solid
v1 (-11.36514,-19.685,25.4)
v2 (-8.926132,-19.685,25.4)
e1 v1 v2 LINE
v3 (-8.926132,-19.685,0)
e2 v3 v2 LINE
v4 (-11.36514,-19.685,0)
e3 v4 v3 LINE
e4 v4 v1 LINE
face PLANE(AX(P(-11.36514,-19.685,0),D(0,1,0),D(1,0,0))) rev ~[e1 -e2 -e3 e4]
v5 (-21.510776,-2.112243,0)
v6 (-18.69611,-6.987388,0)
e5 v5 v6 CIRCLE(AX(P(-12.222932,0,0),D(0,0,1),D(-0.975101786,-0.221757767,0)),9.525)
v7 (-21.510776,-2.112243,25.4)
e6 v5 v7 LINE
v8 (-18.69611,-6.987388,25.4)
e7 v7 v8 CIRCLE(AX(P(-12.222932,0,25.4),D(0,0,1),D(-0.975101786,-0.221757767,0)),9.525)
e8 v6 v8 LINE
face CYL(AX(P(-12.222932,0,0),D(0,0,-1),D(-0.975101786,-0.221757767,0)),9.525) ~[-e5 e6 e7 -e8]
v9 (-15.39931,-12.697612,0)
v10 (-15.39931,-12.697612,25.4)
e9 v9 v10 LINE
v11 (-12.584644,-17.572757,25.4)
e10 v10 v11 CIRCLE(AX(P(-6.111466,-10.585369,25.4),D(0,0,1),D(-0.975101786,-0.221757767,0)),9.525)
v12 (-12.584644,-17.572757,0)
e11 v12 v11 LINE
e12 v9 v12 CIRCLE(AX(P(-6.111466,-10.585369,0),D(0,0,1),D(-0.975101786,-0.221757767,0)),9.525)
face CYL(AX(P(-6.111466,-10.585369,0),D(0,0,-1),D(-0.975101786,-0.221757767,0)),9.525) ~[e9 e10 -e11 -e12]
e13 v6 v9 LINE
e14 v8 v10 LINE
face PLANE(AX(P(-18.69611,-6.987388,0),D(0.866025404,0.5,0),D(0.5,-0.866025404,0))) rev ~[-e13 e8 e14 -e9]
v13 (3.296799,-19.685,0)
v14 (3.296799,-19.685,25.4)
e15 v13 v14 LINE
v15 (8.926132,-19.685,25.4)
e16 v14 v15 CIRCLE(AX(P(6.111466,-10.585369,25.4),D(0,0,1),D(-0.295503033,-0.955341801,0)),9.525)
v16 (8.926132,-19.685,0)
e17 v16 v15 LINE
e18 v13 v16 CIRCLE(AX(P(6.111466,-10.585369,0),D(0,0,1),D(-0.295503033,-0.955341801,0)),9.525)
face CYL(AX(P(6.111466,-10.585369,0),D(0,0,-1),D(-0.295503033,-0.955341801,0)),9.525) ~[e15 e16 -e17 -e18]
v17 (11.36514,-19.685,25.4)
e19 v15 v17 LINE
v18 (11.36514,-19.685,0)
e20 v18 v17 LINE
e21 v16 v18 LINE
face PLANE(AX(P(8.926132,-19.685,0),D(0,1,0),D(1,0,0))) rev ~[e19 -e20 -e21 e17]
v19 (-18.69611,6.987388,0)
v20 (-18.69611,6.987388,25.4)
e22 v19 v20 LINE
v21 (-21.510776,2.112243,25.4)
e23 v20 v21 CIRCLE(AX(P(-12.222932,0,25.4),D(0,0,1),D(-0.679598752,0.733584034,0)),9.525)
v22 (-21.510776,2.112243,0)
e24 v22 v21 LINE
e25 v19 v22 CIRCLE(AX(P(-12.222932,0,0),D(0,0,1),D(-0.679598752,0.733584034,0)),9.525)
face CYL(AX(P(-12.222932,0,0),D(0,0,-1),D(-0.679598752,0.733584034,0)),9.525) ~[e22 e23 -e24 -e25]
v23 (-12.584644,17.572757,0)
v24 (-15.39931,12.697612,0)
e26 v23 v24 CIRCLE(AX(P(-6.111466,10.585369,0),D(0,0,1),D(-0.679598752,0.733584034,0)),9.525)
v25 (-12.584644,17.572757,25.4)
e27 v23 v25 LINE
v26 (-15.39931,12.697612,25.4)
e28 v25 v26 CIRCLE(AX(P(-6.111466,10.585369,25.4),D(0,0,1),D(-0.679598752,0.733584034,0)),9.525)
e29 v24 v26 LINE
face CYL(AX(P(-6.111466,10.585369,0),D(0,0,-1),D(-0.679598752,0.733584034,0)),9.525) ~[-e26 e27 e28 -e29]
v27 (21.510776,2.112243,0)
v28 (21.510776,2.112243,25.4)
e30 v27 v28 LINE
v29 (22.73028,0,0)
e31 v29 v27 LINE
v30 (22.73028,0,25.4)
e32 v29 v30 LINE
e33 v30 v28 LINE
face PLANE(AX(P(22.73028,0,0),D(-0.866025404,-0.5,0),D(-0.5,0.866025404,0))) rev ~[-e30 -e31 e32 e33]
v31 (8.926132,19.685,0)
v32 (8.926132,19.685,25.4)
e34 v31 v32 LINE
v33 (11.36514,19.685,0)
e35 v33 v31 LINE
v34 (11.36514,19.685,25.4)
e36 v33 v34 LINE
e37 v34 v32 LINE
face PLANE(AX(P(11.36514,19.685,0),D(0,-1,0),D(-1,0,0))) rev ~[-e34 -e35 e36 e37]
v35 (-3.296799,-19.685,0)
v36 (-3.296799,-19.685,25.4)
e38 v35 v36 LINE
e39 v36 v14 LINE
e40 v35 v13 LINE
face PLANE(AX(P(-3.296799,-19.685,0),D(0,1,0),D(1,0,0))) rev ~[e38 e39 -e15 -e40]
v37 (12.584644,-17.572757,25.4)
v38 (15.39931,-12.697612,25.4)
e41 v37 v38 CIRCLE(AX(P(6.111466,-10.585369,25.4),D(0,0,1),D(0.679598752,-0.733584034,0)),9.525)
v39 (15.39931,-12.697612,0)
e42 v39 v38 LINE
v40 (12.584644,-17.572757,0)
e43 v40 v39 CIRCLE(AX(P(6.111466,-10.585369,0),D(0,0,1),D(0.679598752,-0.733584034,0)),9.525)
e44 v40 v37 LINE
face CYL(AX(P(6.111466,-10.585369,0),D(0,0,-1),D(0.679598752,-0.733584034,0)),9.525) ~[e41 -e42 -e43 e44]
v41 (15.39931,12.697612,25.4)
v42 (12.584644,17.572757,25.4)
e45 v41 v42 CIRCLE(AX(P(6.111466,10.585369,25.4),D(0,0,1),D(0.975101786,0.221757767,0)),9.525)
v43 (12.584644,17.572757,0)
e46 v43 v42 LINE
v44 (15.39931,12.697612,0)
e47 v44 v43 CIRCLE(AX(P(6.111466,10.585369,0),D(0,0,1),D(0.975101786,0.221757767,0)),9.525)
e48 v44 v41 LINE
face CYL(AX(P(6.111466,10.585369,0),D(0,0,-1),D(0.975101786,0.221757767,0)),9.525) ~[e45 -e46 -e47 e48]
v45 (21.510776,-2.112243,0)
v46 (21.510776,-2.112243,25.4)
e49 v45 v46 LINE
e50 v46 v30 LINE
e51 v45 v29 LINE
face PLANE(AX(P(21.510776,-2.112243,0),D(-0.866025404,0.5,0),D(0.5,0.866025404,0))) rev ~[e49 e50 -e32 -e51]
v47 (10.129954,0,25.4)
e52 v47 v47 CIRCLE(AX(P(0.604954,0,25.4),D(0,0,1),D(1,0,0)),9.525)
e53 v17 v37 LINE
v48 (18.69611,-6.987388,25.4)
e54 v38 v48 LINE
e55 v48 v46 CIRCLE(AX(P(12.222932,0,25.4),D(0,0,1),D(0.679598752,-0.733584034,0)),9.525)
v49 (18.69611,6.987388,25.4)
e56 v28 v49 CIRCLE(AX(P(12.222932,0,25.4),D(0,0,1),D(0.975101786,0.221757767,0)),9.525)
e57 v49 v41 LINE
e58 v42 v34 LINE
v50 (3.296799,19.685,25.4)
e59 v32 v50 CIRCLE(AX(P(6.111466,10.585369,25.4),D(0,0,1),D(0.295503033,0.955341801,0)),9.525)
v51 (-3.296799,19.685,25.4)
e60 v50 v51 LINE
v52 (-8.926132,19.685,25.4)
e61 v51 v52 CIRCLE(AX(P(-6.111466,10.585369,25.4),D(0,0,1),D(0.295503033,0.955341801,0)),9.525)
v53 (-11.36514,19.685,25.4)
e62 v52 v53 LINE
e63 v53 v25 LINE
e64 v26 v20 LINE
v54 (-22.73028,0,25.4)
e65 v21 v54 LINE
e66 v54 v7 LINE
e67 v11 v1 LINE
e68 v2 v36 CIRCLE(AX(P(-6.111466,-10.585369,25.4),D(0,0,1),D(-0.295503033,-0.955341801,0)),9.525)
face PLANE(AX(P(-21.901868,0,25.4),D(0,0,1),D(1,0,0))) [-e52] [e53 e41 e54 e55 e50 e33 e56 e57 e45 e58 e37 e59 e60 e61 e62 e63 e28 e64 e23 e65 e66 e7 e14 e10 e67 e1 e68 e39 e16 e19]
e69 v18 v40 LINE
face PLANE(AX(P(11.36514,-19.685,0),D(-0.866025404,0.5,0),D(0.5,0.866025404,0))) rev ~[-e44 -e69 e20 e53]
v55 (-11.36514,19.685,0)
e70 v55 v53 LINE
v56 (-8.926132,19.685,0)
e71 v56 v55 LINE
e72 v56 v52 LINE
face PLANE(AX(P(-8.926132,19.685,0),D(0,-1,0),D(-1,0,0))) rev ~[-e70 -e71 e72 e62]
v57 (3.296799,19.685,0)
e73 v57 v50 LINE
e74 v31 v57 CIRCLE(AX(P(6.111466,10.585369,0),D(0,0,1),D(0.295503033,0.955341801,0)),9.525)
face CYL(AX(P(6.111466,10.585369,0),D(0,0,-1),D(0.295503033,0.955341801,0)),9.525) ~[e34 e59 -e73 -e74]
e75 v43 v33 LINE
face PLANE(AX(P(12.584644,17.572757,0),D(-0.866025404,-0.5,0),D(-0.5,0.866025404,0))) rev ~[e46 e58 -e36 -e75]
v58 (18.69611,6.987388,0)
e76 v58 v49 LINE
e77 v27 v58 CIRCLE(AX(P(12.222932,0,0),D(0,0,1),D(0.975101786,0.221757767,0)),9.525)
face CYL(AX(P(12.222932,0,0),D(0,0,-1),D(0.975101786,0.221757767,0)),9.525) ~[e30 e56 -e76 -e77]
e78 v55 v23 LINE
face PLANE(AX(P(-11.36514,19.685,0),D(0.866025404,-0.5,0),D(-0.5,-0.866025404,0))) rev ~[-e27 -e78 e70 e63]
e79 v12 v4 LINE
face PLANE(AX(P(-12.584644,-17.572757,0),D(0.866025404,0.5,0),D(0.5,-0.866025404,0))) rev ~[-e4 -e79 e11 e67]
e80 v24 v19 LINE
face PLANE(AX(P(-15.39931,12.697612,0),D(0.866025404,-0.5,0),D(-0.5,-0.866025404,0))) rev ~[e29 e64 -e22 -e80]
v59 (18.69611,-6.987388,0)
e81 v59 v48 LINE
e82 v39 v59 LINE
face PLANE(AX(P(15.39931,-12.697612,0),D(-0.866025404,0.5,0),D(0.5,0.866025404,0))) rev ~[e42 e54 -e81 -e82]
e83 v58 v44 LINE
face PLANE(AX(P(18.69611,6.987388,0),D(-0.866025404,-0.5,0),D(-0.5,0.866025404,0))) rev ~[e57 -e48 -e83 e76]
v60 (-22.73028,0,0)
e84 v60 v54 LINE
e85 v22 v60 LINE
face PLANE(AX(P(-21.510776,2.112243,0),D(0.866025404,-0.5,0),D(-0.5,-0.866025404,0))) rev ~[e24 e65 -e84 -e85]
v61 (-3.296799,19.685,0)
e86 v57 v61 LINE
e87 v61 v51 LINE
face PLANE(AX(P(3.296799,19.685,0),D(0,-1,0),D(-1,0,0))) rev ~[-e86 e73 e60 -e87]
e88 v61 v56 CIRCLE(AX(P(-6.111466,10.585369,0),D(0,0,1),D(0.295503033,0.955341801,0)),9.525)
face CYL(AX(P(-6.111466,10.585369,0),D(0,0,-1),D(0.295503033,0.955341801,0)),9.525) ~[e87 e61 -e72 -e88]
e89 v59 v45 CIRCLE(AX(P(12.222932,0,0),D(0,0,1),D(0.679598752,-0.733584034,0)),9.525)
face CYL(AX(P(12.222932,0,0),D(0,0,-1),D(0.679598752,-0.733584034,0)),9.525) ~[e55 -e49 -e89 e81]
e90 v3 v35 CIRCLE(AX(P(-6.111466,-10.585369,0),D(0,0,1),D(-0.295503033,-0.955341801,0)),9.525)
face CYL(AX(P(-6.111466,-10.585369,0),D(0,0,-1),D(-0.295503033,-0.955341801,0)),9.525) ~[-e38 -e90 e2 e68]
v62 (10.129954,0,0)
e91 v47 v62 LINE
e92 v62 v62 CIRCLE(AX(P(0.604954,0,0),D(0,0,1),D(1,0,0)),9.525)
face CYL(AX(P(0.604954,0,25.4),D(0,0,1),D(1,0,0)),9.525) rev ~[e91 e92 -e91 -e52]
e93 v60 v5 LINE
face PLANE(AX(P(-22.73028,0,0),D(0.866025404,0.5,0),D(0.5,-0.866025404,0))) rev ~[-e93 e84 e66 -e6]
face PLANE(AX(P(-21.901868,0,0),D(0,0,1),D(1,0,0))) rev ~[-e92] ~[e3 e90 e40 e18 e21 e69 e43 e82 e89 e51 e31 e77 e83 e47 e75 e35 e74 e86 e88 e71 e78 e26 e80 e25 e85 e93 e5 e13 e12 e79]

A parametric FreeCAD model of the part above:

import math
import FreeCAD as App
import Part
import Sketcher

V = App.Vector
Q = App.Units.Quantity

doc = App.newDocument("Part")
body = doc.addObject("PartDesign::Body", "Body")

sketch1 = doc.addObject("Sketcher::SketchObject", "Sketch")
body.addObject(sketch1)
sketch1.AttachmentSupport = (doc.XY_Plane, [""])
sketch1.MapMode = "FlatFace"
sketch1.addGeometry([
    Part.LineSegment(V(8.926132, -19.685, 0), V(11.36514, -19.685, 0)),
    Part.LineSegment(V(11.36514, -19.685, 0), V(12.584644, -17.572757, 0)),
    Part.ArcOfCircle(Part.Circle(V(6.111466, -10.585369, 0), V(0, 0, 1), 9.525), math.radians(-47.187704), math.radians(-12.812296)),
    Part.LineSegment(V(15.39931, -12.697612, 0), V(18.69611, -6.987388, 0)),
    Part.ArcOfCircle(Part.Circle(V(12.222932, 0, 0), V(0, 0, 1), 9.525), math.radians(-47.187704), math.radians(-12.812296)),
    Part.LineSegment(V(21.510776, -2.112243, 0), V(22.73028, 0, 0)),
    Part.LineSegment(V(22.73028, 0, 0), V(21.510776, 2.112243, 0)),
    Part.ArcOfCircle(Part.Circle(V(12.222932, 0, 0), V(0, 0, 1), 9.525), math.radians(12.812296), math.radians(47.187704)),
    Part.LineSegment(V(18.69611, 6.987388, 0), V(15.39931, 12.697612, 0)),
    Part.ArcOfCircle(Part.Circle(V(6.111466, 10.585369, 0), V(0, 0, 1), 9.525), math.radians(12.812296), math.radians(47.187704)),
    Part.LineSegment(V(12.584644, 17.572757, 0), V(11.36514, 19.685, 0)),
    Part.LineSegment(V(11.36514, 19.685, 0), V(8.926132, 19.685, 0)),
    Part.ArcOfCircle(Part.Circle(V(6.111466, 10.585369, 0), V(0, 0, 1), 9.525), math.radians(72.812296), math.radians(107.187704)),
    Part.LineSegment(V(3.296799, 19.685, 0), V(-3.296799, 19.685, 0)),
    Part.ArcOfCircle(Part.Circle(V(-6.111466, 10.585369, 0), V(0, 0, 1), 9.525), math.radians(72.812296), math.radians(107.187704)),
    Part.LineSegment(V(-8.926132, 19.685, 0), V(-11.36514, 19.685, 0)),
    Part.LineSegment(V(-11.36514, 19.685, 0), V(-12.584644, 17.572757, 0)),
    Part.ArcOfCircle(Part.Circle(V(-6.111466, 10.585369, 0), V(0, 0, 1), 9.525), math.radians(132.812296), math.radians(167.187704)),
    Part.LineSegment(V(-15.39931, 12.697612, 0), V(-18.69611, 6.987388, 0)),
    Part.ArcOfCircle(Part.Circle(V(-12.222932, 0, 0), V(0, 0, 1), 9.525), math.radians(132.812296), math.radians(167.187704)),
    Part.LineSegment(V(-21.510776, 2.112243, 0), V(-22.73028, 0, 0)),
    Part.LineSegment(V(-22.73028, 0, 0), V(-21.510776, -2.112243, 0)),
    Part.ArcOfCircle(Part.Circle(V(-12.222932, 0, 0), V(0, 0, 1), 9.525), math.radians(-167.187704), math.radians(-132.812296)),
    Part.LineSegment(V(-18.69611, -6.987388, 0), V(-15.39931, -12.697612, 0)),
    Part.ArcOfCircle(Part.Circle(V(-6.111466, -10.585369, 0), V(0, 0, 1), 9.525), math.radians(-167.187704), math.radians(-132.812296)),
    Part.LineSegment(V(-12.584644, -17.572757, 0), V(-11.36514, -19.685, 0)),
    Part.LineSegment(V(-11.36514, -19.685, 0), V(-8.926132, -19.685, 0)),
    Part.ArcOfCircle(Part.Circle(V(-6.111466, -10.585369, 0), V(0, 0, 1), 9.525), math.radians(-107.187704), math.radians(-72.812296)),
    Part.LineSegment(V(-3.296799, -19.685, 0), V(3.296799, -19.685, 0)),
    Part.ArcOfCircle(Part.Circle(V(6.111466, -10.585369, 0), V(0, 0, 1), 9.525), math.radians(-107.187704), math.radians(-72.812296)),
], False)
sketch1.addConstraint([
    Sketcher.Constraint("Coincident", 0, 2, 1, 1),
    Sketcher.Constraint("Coincident", 1, 2, 2, 1),
    Sketcher.Constraint("Coincident", 2, 2, 3, 1),
    Sketcher.Constraint("Coincident", 3, 2, 4, 1),
    Sketcher.Constraint("Coincident", 4, 2, 5, 1),
    Sketcher.Constraint("Coincident", 5, 2, 6, 1),
    Sketcher.Constraint("Coincident", 6, 2, 7, 1),
    Sketcher.Constraint("Coincident", 7, 2, 8, 1),
    Sketcher.Constraint("Coincident", 8, 2, 9, 1),
    Sketcher.Constraint("Coincident", 9, 2, 10, 1),
    Sketcher.Constraint("Coincident", 10, 2, 11, 1),
    Sketcher.Constraint("Coincident", 11, 2, 12, 1),
    Sketcher.Constraint("Coincident", 12, 2, 13, 1),
    Sketcher.Constraint("Coincident", 13, 2, 14, 1),
    Sketcher.Constraint("Coincident", 14, 2, 15, 1),
    Sketcher.Constraint("Coincident", 15, 2, 16, 1),
    Sketcher.Constraint("Coincident", 16, 2, 17, 1),
    Sketcher.Constraint("Coincident", 17, 2, 18, 1),
    Sketcher.Constraint("Coincident", 18, 2, 19, 1),
    Sketcher.Constraint("Coincident", 19, 2, 20, 1),
    Sketcher.Constraint("Coincident", 20, 2, 21, 1),
    Sketcher.Constraint("Coincident", 21, 2, 22, 1),
    Sketcher.Constraint("Coincident", 22, 2, 23, 1),
    Sketcher.Constraint("Coincident", 23, 2, 24, 1),
    Sketcher.Constraint("Coincident", 24, 2, 25, 1),
    Sketcher.Constraint("Coincident", 25, 2, 26, 1),
    Sketcher.Constraint("Coincident", 26, 2, 27, 1),
    Sketcher.Constraint("Coincident", 27, 2, 28, 1),
    Sketcher.Constraint("Coincident", 28, 2, 29, 1),
    Sketcher.Constraint("Coincident", 29, 2, 0, 1),
    Sketcher.Constraint("Horizontal", 0),
    Sketcher.Constraint("Horizontal", 11),
    Sketcher.Constraint("Horizontal", 13),
    Sketcher.Constraint("Horizontal", 15),
    Sketcher.Constraint("Horizontal", 26),
    Sketcher.Constraint("Horizontal", 28),
    Sketcher.Constraint("Coincident", 7, 3, 4, 3),
    Sketcher.Constraint("Coincident", 12, 3, 9, 3),
    Sketcher.Constraint("Coincident", 17, 3, 14, 3),
    Sketcher.Constraint("Coincident", 22, 3, 19, 3),
    Sketcher.Constraint("Coincident", 27, 3, 24, 3),
    Sketcher.Constraint("Coincident", 29, 3, 2, 3),
    Sketcher.Constraint("Equal", 2, 4),
    Sketcher.Constraint("Equal", 4, 7),
    Sketcher.Constraint("Equal", 7, 9),
    Sketcher.Constraint("Equal", 9, 12),
    Sketcher.Constraint("Equal", 12, 14),
    Sketcher.Constraint("Equal", 14, 17),
    Sketcher.Constraint("Equal", 17, 19),
    Sketcher.Constraint("Equal", 19, 22),
    Sketcher.Constraint("Equal", 22, 24),
    Sketcher.Constraint("Equal", 24, 27),
    Sketcher.Constraint("Equal", 27, 29),
    Sketcher.Constraint("Symmetric", 2, 3, 14, 3, -1, 1),
    Sketcher.Constraint("Symmetric", 4, 3, 19, 3, -1, 1),
    Sketcher.Constraint("Symmetric", 9, 3, 24, 3, -1, 1),
    Sketcher.Constraint("Symmetric", 0, 2, 15, 2, -1, 1),
    Sketcher.Constraint("Symmetric", 5, 2, 20, 2, -1, 1),
    Sketcher.Constraint("Symmetric", 10, 2, 25, 2, -1, 1),
    Sketcher.Constraint("Symmetric", 9, 3, 14, 3, -2),
    Sketcher.Constraint("Symmetric", 10, 2, 15, 2, -2),
    Sketcher.Constraint("Symmetric", 7, 2, 18, 2, -2),
    Sketcher.Constraint("PointOnObject", 5, 2, -1),
    Sketcher.Constraint("Parallel", 1, 3),
    Sketcher.Constraint("Parallel", 3, 5),
    Sketcher.Constraint("Parallel", 6, 8),
    Sketcher.Constraint("Parallel", 8, 10),
    Sketcher.Constraint("Parallel", 5, 16),
    Sketcher.Constraint("Parallel", 16, 18),
    Sketcher.Constraint("Parallel", 18, 20),
    Sketcher.Constraint("Parallel", 10, 21),
    Sketcher.Constraint("Parallel", 21, 23),
    Sketcher.Constraint("Parallel", 23, 25),
    Sketcher.Constraint("Horizontal", 11, 2, 12, 2),
    Sketcher.Constraint("Horizontal", 9, 2, 16, 2),
    Sketcher.Constraint("Horizontal", 3, 2, 22, 2),
    Sketcher.Constraint("Horizontal", 26, 2, 27, 2),
    Sketcher.Constraint("Vertical", 3, 2, 7, 2),
    Sketcher.Constraint("Equal", 1, 5),
    Sketcher.Constraint("Angle", 1, Q("60 deg")),
    Sketcher.Constraint("Radius", 2, Q("0.375 in")),
    Sketcher.Constraint("DistanceY", 0, 2, -1, 1, Q("0.775 in")),
    Sketcher.Constraint("DistanceX", 13, 2, 13, 1, 6.593599),
    Sketcher.Constraint("Distance", 3, 6.593599),
    Sketcher.Constraint("DistanceX", 14, 2, 9, 3, 15.037598),
    Sketcher.Constraint("DistanceX", 0, 1, 0, 2, 2.439008),
    Sketcher.Constraint("DistanceX", -1, 1, 4, 3, 12.222932),
])
pad1 = doc.addObject("PartDesign::Pad", "Pad")
body.addObject(pad1)
pad1.Profile = sketch1
pad1.Length = Q("1 in")

sketch2 = doc.addObject("Sketcher::SketchObject", "Sketch001")
body.addObject(sketch2)
sketch2.AttachmentSupport = (doc.XY_Plane, [""])
sketch2.MapMode = "FlatFace"
sketch2.AttachmentOffset = App.Placement(V(0, 0, 1 * 25.4), App.Rotation())
sketch2.addGeometry(Part.Circle(V(0.604954, 0, 0), V(0, 0, 1), 9.525), False)
sketch2.addConstraint([
    Sketcher.Constraint("PointOnObject", 0, 3, -1),
    Sketcher.Constraint("Diameter", 0, Q("0.75 in")),
    Sketcher.Constraint("DistanceX", -1, 1, 0, 3, 0.604954),
])
pocket1 = doc.addObject("PartDesign::Pocket", "Pocket")
body.addObject(pocket1)
pocket1.Profile = sketch2
pocket1.Type = "ThroughAll"

doc.recompute()
